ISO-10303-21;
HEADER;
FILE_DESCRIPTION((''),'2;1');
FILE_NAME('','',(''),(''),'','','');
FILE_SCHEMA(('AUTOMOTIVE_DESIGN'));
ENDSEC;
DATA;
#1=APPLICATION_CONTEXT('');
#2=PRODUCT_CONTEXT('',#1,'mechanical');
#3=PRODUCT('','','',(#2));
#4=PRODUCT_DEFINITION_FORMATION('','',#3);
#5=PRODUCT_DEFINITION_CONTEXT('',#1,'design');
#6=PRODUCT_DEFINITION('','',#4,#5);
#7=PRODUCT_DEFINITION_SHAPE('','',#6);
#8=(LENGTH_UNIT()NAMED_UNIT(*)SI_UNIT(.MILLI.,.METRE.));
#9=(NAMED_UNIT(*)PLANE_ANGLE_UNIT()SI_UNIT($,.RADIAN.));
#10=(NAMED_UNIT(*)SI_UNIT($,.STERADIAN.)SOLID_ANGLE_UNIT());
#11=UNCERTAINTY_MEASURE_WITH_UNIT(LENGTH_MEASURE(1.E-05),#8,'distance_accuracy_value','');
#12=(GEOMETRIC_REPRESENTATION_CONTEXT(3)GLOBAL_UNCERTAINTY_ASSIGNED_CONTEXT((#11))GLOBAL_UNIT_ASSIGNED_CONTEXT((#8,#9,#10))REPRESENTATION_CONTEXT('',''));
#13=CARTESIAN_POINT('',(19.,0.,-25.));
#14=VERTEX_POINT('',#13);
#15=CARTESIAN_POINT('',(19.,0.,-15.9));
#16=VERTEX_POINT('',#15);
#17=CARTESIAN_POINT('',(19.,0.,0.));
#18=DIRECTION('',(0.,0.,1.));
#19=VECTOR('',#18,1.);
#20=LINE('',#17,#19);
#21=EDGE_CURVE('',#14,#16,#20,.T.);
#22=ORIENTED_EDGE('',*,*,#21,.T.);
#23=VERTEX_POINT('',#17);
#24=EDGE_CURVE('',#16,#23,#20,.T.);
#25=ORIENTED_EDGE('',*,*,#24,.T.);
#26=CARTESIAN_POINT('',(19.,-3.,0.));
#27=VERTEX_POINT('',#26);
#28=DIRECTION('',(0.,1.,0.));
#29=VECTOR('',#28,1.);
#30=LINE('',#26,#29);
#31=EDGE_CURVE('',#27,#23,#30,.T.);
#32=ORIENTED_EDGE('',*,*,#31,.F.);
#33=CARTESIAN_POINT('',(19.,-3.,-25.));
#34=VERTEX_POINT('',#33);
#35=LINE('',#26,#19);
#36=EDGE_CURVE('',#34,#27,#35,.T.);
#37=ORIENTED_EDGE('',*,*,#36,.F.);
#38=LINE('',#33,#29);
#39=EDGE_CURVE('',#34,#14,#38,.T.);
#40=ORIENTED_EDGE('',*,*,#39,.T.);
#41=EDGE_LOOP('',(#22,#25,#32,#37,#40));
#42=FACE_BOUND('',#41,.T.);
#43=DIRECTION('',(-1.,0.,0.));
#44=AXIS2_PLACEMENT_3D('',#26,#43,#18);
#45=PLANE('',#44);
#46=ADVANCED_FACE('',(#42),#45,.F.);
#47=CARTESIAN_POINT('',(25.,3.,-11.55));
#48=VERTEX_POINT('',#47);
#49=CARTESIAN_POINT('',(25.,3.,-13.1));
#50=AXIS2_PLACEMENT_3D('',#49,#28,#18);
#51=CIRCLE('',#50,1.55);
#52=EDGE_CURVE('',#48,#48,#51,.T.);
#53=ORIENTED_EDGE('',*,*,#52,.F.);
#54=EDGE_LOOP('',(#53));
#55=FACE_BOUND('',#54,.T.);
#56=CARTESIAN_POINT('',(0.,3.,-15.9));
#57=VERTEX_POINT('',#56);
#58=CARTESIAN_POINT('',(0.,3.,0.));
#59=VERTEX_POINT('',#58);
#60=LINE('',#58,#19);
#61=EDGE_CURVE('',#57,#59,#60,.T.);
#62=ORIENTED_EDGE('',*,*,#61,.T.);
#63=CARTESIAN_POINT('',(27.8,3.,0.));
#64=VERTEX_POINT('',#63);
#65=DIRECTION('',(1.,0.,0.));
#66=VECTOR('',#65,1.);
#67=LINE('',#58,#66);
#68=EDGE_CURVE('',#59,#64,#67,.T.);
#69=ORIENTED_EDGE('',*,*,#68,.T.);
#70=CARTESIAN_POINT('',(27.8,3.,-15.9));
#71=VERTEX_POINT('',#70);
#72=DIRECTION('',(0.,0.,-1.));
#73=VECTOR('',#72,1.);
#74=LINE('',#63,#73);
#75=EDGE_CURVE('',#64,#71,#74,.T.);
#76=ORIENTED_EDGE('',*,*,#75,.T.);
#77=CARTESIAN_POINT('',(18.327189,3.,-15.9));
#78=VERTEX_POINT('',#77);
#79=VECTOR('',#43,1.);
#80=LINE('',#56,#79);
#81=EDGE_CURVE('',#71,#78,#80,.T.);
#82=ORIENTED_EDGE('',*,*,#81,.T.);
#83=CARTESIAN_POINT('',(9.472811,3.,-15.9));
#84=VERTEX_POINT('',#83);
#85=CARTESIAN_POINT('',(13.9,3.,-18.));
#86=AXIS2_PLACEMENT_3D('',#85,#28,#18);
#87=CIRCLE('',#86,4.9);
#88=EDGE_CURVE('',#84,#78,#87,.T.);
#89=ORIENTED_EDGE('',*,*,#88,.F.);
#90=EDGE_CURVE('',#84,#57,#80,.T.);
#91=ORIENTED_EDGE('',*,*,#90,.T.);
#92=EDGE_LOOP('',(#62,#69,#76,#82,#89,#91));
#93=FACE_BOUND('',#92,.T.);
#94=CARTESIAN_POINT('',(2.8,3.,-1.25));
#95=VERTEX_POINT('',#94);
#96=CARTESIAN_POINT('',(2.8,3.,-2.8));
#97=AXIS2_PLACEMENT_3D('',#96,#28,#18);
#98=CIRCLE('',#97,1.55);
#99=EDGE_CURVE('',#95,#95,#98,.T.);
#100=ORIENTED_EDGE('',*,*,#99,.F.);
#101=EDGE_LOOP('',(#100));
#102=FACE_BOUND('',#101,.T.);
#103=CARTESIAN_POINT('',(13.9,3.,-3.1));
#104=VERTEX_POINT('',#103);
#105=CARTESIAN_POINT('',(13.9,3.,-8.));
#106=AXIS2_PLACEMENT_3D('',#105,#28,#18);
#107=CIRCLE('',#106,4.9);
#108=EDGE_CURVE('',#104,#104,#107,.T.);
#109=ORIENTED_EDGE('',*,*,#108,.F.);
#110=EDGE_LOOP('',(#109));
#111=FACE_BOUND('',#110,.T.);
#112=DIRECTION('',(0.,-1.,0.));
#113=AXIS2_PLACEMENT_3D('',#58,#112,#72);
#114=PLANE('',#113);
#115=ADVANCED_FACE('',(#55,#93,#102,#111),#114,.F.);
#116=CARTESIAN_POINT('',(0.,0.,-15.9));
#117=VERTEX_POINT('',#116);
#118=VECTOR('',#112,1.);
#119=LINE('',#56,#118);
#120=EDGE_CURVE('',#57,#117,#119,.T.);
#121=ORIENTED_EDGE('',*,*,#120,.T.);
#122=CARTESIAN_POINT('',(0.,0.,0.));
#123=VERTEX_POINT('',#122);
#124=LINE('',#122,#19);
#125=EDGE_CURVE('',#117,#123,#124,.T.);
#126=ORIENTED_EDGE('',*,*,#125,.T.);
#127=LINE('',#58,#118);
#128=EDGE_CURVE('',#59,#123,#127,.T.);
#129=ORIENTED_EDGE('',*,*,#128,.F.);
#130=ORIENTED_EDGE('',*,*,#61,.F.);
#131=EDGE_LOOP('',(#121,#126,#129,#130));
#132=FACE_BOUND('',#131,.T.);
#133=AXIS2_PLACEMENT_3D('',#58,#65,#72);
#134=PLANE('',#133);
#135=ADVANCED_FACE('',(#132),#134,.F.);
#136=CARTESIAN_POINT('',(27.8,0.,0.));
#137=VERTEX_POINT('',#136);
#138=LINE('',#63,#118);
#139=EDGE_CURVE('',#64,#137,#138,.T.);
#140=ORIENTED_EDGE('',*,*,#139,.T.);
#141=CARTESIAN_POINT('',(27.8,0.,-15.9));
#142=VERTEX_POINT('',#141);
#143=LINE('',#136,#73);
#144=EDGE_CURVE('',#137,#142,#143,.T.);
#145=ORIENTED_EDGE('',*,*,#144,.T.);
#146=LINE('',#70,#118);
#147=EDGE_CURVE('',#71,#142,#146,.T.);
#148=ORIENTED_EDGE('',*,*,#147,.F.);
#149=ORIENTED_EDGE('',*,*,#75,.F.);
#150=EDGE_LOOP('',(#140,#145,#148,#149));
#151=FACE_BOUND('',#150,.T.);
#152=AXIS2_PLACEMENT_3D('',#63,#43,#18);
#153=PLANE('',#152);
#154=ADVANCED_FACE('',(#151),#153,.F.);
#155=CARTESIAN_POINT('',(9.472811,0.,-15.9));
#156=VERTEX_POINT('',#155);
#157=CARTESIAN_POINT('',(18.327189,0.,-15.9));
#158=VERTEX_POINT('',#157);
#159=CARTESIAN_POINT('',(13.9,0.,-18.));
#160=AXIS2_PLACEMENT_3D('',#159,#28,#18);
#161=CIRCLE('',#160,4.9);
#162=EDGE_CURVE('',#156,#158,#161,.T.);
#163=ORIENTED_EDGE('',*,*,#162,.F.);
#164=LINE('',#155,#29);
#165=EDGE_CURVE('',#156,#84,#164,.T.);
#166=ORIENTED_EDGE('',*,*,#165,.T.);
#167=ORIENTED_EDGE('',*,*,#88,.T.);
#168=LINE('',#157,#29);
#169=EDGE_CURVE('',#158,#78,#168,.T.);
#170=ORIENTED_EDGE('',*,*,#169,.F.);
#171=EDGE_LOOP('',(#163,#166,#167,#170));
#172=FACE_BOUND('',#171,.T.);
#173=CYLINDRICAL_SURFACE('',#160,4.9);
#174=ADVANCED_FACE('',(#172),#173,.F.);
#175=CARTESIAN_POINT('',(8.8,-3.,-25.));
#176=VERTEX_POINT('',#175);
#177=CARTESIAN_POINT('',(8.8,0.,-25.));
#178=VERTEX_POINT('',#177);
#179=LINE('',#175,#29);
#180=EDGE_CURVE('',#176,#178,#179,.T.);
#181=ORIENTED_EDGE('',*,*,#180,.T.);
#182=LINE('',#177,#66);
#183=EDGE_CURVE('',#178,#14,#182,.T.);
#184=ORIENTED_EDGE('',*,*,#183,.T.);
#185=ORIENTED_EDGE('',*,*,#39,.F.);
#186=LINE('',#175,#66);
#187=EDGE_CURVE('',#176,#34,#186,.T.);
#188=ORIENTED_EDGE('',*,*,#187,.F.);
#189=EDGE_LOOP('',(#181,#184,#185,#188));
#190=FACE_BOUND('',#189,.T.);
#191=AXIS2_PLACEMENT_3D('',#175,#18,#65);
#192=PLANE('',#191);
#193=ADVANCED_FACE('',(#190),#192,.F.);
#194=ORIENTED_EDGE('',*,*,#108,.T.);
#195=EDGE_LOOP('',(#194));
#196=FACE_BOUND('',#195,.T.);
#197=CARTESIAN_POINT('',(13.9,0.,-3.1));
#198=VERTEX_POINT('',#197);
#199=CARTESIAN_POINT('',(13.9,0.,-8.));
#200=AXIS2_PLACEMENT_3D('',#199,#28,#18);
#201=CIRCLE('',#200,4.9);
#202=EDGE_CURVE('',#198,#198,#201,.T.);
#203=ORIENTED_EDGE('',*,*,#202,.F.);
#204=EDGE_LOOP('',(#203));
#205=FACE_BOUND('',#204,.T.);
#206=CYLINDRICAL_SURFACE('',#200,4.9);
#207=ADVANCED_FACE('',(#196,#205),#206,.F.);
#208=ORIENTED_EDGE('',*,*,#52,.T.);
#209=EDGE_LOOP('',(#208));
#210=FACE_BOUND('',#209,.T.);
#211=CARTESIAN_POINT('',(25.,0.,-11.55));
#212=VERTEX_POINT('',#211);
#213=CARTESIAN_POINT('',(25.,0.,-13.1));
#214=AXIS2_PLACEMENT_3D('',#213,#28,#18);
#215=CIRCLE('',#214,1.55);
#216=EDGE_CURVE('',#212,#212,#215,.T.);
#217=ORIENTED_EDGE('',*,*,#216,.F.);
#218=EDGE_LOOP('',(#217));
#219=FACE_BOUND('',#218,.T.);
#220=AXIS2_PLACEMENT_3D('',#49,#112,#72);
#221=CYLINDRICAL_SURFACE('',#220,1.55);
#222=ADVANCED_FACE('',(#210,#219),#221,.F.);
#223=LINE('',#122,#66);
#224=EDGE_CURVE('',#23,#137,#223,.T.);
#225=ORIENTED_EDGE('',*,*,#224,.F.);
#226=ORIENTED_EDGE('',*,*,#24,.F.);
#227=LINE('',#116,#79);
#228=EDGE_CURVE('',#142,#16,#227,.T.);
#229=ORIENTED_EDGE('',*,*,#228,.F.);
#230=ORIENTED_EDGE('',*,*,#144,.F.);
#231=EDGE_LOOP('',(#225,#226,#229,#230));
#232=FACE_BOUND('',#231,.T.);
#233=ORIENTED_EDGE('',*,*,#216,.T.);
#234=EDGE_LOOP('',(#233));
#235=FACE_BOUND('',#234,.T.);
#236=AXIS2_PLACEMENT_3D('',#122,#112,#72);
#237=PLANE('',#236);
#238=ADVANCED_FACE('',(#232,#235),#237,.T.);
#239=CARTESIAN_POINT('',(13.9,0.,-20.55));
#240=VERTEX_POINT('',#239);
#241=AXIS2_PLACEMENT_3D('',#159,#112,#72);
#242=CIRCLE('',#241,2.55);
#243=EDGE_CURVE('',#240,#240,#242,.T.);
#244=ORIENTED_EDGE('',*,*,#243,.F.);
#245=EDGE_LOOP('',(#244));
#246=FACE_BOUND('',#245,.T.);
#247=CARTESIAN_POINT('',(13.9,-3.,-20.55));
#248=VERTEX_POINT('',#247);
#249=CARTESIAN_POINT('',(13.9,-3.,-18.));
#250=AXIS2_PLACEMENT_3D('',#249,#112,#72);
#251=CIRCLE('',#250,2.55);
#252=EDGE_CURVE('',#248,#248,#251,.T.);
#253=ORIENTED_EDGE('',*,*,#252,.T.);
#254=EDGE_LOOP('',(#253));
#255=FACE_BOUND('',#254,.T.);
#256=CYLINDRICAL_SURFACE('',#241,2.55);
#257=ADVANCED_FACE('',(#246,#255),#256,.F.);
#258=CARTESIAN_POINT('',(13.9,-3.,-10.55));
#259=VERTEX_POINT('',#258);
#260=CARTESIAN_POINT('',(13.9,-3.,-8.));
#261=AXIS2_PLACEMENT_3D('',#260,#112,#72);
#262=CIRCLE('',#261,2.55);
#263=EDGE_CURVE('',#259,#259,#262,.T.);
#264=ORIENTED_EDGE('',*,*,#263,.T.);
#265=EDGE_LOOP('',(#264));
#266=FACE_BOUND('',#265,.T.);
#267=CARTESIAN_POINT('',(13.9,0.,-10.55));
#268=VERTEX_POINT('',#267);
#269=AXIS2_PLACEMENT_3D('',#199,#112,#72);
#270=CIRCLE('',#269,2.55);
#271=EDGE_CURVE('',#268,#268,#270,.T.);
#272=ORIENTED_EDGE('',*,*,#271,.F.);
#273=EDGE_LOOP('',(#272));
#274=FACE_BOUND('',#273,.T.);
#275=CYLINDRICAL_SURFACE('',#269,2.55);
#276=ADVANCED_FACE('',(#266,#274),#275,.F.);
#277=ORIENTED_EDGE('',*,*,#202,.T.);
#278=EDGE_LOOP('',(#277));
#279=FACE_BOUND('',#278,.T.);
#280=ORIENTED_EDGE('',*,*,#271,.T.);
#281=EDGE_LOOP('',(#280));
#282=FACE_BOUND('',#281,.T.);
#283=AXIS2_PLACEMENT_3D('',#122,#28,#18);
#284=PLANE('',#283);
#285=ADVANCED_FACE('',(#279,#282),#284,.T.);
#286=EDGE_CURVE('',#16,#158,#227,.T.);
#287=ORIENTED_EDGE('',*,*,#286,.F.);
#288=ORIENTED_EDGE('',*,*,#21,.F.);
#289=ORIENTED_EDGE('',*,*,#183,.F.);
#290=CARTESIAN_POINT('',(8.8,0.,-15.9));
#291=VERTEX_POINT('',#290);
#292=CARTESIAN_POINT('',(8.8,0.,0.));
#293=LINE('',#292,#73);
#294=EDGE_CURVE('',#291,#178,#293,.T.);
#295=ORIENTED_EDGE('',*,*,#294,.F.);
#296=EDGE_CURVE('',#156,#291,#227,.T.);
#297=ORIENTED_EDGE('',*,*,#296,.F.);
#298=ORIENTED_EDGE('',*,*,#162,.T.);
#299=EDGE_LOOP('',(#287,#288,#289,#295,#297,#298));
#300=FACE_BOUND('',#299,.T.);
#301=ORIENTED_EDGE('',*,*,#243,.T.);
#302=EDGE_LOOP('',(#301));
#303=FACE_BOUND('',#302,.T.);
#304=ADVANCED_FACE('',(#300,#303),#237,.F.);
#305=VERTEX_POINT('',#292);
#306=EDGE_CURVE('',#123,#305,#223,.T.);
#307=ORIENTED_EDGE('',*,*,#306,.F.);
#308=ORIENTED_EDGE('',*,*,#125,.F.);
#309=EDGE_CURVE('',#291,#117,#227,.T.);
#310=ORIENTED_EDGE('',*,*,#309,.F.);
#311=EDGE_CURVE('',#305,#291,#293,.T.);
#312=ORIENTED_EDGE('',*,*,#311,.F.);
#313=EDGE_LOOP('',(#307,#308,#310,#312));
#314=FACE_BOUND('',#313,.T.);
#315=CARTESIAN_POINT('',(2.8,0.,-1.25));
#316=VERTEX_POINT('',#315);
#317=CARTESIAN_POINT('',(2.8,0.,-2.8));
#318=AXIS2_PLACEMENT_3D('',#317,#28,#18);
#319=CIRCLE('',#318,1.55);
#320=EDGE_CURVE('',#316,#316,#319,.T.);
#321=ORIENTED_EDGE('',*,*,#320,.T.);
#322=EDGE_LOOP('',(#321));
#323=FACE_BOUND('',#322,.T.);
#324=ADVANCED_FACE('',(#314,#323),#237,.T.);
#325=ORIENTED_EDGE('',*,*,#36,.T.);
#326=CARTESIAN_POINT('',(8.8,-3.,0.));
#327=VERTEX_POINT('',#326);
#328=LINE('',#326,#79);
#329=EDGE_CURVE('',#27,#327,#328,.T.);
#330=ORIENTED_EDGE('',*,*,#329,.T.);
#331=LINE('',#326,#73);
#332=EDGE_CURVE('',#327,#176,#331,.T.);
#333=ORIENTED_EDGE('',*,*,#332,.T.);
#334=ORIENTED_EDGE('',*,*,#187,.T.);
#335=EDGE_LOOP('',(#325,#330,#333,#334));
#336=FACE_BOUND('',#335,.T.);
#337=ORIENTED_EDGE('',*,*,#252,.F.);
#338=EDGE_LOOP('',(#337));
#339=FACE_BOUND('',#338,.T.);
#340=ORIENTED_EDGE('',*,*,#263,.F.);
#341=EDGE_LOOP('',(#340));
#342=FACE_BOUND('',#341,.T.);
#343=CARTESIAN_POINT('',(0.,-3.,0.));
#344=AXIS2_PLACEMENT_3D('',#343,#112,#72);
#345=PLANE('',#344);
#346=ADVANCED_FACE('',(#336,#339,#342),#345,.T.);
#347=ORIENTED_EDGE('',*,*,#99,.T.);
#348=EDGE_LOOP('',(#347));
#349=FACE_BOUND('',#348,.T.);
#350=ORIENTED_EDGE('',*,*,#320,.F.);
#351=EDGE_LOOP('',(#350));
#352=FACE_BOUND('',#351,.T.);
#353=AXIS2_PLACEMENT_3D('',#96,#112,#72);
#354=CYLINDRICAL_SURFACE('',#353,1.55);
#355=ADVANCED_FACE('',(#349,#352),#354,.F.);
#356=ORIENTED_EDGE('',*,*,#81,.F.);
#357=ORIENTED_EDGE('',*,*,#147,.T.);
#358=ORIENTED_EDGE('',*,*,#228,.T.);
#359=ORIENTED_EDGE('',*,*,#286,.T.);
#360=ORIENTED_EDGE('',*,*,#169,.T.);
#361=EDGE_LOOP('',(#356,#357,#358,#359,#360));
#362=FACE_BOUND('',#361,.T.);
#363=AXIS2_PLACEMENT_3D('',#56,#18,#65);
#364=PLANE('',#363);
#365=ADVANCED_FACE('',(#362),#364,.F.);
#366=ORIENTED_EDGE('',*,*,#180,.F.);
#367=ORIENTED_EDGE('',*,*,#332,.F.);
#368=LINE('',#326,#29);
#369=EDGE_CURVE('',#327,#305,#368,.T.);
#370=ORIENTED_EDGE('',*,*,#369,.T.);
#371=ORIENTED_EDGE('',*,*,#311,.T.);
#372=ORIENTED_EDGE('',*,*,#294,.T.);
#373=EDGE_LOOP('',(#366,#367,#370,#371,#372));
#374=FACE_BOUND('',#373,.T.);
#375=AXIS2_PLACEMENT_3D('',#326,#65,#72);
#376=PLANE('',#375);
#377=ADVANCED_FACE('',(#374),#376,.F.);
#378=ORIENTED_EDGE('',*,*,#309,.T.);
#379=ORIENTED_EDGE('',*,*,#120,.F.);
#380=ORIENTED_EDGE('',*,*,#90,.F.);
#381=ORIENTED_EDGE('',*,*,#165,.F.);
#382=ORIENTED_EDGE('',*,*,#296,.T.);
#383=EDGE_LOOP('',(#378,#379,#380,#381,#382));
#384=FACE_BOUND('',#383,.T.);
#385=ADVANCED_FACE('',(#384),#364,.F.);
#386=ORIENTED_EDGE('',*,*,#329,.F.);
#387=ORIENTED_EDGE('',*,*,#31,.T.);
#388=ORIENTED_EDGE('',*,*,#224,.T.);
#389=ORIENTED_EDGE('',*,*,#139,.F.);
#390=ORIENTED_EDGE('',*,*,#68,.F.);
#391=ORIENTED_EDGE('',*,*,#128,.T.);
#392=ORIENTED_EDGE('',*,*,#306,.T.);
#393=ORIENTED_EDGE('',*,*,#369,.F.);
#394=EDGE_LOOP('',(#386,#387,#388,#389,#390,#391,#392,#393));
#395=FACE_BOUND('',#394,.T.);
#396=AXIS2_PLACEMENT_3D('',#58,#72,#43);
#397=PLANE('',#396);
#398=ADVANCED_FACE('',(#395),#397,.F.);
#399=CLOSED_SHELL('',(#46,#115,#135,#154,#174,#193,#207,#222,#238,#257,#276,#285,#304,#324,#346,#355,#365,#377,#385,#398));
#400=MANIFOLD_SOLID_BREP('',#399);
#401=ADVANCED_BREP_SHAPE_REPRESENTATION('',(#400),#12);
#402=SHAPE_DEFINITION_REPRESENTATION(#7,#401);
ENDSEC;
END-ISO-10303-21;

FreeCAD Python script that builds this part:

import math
import FreeCAD as App
import Part
import Sketcher

V = App.Vector

doc = App.newDocument("Part")
body = doc.addObject("PartDesign::Body", "Body")

# Sketch on XZ plane
sketch1 = body.newObject("Sketcher::SketchObject", "Sketch")
sketch1.AttachmentSupport = (doc.getObject("XZ_Plane"), [""])
sketch1.MapMode = "FlatFace"
sketch1.addGeometry([
    Part.LineSegment(V(0, -15.9, 0), V(0, 0, 0)),  # 0
    Part.LineSegment(V(0, 0, 0), V(27.8, 0, 0)),  # 1
    Part.LineSegment(V(27.8, 0, 0), V(27.8, -15.9, 0)),  # 2
    Part.LineSegment(V(27.8, -15.9, 0), V(0, -15.9, 0)),  # 3
    Part.Circle(V(2.8, -2.8, 0), V(0, 0, 1), 1.55),  # 4
    Part.Circle(V(25, -13.1, 0), V(0, 0, 1), 1.55),  # 5
], False)
sketch1.addConstraint([
    Sketcher.Constraint("Coincident", 0, 2, 1, 1),
    Sketcher.Constraint("Coincident", 1, 2, 2, 1),
    Sketcher.Constraint("Coincident", 2, 2, 3, 1),
    Sketcher.Constraint("Coincident", 3, 2, 0, 1),
    Sketcher.Constraint("Vertical", 0),
    Sketcher.Constraint("Horizontal", 1),
    Sketcher.Constraint("Vertical", 2),
    Sketcher.Constraint("Horizontal", 3),
    Sketcher.Constraint("Coincident", 0, 2, -1, 1),
    Sketcher.Constraint("Equal", 4, 5),
    Sketcher.Constraint("Diameter", 4, 3.1),
    Sketcher.Constraint("DistanceX", 1, 1, 1, 2, 27.8),
    Sketcher.Constraint("DistanceY", 0, 1, 0, 2, 15.9),
    Sketcher.Constraint("DistanceX", -1, 1, 5, 3, 25.0),
    Sketcher.Constraint("DistanceX", 4, 3, 1, 2, 25.0),
    Sketcher.Constraint("DistanceY", 4, 3, -1, 1, 2.8),
    Sketcher.Constraint("DistanceY", 5, 3, -1, 1, 13.1),
])
pad1 = body.newObject("PartDesign::Pad", "Pad")
pad1.Profile = sketch1
pad1.Length = 3
pad1.Reversed = True

# Sketch on XZ plane
sketch2 = body.newObject("Sketcher::SketchObject", "Sketch001")
sketch2.AttachmentSupport = (doc.getObject("XZ_Plane"), [""])
sketch2.MapMode = "FlatFace"
sketch2.addGeometry([
    Part.LineSegment(V(8.8, 0, 0), V(8.8, -25, 0)),
    Part.LineSegment(V(8.8, -25, 0), V(19, -25, 0)),
    Part.LineSegment(V(19, -25, 0), V(19, 0, 0)),
    Part.LineSegment(V(19, 0, 0), V(8.8, 0, 0)),
], False)
sketch2.addConstraint([
    Sketcher.Constraint("Coincident", 0, 2, 1, 1),
    Sketcher.Constraint("Coincident", 1, 2, 2, 1),
    Sketcher.Constraint("Coincident", 2, 2, 3, 1),
    Sketcher.Constraint("Coincident", 3, 2, 0, 1),
    Sketcher.Constraint("Vertical", 0),
    Sketcher.Constraint("Horizontal", 1),
    Sketcher.Constraint("Vertical", 2),
    Sketcher.Constraint("Horizontal", 3),
    Sketcher.Constraint("PointOnObject", 2, 2, -1),
    Sketcher.Constraint("DistanceY", 0, 2, 0, 1, 25.0),
    Sketcher.Constraint("DistanceX", 1, 1, 1, 2, 10.2),
    Sketcher.Constraint("DistanceX", -1, 1, 1, 2, 19.0),
])
pad2 = body.newObject("PartDesign::Pad", "Pad001")
pad2.Profile = sketch2
pad2.Length = 3

# Sketch on XZ plane
sketch3 = body.newObject("Sketcher::SketchObject", "Sketch002")
sketch3.AttachmentSupport = (doc.getObject("XZ_Plane"), [""])
sketch3.MapMode = "FlatFace"
sketch3.AttachmentOffset = App.Placement(V(0, 0, 3), App.Rotation())
sketch3.addGeometry([
    Part.Circle(V(13.9, -8, 0), V(0, 0, 1), 2.55),
    Part.Circle(V(13.9, -18, 0), V(0, 0, 1), 2.55),
], False)
sketch3.addConstraint([
    Sketcher.Constraint("Equal", 0, 1),
    Sketcher.Constraint("Vertical", 0, 3, 1, 3),
    Sketcher.Constraint("Diameter", 0, 5.1),
    Sketcher.Constraint("DistanceY", 0, 3, -1, 1, 8.0),
    Sketcher.Constraint("DistanceY", 1, 3, -1, 1, 18.0),
    Sketcher.Constraint("DistanceX", -1, 1, 0, 3, 13.9),
])
pocket1 = body.newObject("PartDesign::Pocket", "Pocket")
pocket1.Profile = sketch3
pocket1.Length = 3

# Sketch on XZ plane
sketch4 = body.newObject("Sketcher::SketchObject", "Sketch003")
sketch4.AttachmentSupport = (doc.getObject("XZ_Plane"), [""])
sketch4.MapMode = "FlatFace"
sketch4.addGeometry([
    Part.LineSegment(V(18.327189, -15.9, 0), V(9.472811, -15.9, 0)),
    Part.ArcOfCircle(Part.Circle(V(13.9, -18, 0), V(0, 0, 1), 4.9), math.radians(25.376934), math.radians(154.623066)),
    Part.Circle(V(13.9, -8, 0), V(0, 0, 1), 4.9),
], False)
sketch4.addConstraint([
    Sketcher.Constraint("Coincident", 0, 1, 1, 1),
    Sketcher.Constraint("Coincident", 1, 2, 0, 2),
    Sketcher.Constraint("Horizontal", 0),
    Sketcher.Constraint("Equal", 1, 2),
    Sketcher.Constraint("Vertical", 1, 3, 2, 3),
    Sketcher.Constraint("Diameter", 2, 9.8),
    Sketcher.Constraint("DistanceY", 1, 3, -1, 1, 18.0),
    Sketcher.Constraint("DistanceY", 2, 3, -1, 1, 8.0),
    Sketcher.Constraint("DistanceX", -1, 1, 1, 3, 13.9),
    Sketcher.Constraint("DistanceY", 0, 1, -1, 1, 15.9),
])
pocket2 = body.newObject("PartDesign::Pocket", "Pocket001")
pocket2.Profile = sketch4
pocket2.Length = 3

doc.recompute()
